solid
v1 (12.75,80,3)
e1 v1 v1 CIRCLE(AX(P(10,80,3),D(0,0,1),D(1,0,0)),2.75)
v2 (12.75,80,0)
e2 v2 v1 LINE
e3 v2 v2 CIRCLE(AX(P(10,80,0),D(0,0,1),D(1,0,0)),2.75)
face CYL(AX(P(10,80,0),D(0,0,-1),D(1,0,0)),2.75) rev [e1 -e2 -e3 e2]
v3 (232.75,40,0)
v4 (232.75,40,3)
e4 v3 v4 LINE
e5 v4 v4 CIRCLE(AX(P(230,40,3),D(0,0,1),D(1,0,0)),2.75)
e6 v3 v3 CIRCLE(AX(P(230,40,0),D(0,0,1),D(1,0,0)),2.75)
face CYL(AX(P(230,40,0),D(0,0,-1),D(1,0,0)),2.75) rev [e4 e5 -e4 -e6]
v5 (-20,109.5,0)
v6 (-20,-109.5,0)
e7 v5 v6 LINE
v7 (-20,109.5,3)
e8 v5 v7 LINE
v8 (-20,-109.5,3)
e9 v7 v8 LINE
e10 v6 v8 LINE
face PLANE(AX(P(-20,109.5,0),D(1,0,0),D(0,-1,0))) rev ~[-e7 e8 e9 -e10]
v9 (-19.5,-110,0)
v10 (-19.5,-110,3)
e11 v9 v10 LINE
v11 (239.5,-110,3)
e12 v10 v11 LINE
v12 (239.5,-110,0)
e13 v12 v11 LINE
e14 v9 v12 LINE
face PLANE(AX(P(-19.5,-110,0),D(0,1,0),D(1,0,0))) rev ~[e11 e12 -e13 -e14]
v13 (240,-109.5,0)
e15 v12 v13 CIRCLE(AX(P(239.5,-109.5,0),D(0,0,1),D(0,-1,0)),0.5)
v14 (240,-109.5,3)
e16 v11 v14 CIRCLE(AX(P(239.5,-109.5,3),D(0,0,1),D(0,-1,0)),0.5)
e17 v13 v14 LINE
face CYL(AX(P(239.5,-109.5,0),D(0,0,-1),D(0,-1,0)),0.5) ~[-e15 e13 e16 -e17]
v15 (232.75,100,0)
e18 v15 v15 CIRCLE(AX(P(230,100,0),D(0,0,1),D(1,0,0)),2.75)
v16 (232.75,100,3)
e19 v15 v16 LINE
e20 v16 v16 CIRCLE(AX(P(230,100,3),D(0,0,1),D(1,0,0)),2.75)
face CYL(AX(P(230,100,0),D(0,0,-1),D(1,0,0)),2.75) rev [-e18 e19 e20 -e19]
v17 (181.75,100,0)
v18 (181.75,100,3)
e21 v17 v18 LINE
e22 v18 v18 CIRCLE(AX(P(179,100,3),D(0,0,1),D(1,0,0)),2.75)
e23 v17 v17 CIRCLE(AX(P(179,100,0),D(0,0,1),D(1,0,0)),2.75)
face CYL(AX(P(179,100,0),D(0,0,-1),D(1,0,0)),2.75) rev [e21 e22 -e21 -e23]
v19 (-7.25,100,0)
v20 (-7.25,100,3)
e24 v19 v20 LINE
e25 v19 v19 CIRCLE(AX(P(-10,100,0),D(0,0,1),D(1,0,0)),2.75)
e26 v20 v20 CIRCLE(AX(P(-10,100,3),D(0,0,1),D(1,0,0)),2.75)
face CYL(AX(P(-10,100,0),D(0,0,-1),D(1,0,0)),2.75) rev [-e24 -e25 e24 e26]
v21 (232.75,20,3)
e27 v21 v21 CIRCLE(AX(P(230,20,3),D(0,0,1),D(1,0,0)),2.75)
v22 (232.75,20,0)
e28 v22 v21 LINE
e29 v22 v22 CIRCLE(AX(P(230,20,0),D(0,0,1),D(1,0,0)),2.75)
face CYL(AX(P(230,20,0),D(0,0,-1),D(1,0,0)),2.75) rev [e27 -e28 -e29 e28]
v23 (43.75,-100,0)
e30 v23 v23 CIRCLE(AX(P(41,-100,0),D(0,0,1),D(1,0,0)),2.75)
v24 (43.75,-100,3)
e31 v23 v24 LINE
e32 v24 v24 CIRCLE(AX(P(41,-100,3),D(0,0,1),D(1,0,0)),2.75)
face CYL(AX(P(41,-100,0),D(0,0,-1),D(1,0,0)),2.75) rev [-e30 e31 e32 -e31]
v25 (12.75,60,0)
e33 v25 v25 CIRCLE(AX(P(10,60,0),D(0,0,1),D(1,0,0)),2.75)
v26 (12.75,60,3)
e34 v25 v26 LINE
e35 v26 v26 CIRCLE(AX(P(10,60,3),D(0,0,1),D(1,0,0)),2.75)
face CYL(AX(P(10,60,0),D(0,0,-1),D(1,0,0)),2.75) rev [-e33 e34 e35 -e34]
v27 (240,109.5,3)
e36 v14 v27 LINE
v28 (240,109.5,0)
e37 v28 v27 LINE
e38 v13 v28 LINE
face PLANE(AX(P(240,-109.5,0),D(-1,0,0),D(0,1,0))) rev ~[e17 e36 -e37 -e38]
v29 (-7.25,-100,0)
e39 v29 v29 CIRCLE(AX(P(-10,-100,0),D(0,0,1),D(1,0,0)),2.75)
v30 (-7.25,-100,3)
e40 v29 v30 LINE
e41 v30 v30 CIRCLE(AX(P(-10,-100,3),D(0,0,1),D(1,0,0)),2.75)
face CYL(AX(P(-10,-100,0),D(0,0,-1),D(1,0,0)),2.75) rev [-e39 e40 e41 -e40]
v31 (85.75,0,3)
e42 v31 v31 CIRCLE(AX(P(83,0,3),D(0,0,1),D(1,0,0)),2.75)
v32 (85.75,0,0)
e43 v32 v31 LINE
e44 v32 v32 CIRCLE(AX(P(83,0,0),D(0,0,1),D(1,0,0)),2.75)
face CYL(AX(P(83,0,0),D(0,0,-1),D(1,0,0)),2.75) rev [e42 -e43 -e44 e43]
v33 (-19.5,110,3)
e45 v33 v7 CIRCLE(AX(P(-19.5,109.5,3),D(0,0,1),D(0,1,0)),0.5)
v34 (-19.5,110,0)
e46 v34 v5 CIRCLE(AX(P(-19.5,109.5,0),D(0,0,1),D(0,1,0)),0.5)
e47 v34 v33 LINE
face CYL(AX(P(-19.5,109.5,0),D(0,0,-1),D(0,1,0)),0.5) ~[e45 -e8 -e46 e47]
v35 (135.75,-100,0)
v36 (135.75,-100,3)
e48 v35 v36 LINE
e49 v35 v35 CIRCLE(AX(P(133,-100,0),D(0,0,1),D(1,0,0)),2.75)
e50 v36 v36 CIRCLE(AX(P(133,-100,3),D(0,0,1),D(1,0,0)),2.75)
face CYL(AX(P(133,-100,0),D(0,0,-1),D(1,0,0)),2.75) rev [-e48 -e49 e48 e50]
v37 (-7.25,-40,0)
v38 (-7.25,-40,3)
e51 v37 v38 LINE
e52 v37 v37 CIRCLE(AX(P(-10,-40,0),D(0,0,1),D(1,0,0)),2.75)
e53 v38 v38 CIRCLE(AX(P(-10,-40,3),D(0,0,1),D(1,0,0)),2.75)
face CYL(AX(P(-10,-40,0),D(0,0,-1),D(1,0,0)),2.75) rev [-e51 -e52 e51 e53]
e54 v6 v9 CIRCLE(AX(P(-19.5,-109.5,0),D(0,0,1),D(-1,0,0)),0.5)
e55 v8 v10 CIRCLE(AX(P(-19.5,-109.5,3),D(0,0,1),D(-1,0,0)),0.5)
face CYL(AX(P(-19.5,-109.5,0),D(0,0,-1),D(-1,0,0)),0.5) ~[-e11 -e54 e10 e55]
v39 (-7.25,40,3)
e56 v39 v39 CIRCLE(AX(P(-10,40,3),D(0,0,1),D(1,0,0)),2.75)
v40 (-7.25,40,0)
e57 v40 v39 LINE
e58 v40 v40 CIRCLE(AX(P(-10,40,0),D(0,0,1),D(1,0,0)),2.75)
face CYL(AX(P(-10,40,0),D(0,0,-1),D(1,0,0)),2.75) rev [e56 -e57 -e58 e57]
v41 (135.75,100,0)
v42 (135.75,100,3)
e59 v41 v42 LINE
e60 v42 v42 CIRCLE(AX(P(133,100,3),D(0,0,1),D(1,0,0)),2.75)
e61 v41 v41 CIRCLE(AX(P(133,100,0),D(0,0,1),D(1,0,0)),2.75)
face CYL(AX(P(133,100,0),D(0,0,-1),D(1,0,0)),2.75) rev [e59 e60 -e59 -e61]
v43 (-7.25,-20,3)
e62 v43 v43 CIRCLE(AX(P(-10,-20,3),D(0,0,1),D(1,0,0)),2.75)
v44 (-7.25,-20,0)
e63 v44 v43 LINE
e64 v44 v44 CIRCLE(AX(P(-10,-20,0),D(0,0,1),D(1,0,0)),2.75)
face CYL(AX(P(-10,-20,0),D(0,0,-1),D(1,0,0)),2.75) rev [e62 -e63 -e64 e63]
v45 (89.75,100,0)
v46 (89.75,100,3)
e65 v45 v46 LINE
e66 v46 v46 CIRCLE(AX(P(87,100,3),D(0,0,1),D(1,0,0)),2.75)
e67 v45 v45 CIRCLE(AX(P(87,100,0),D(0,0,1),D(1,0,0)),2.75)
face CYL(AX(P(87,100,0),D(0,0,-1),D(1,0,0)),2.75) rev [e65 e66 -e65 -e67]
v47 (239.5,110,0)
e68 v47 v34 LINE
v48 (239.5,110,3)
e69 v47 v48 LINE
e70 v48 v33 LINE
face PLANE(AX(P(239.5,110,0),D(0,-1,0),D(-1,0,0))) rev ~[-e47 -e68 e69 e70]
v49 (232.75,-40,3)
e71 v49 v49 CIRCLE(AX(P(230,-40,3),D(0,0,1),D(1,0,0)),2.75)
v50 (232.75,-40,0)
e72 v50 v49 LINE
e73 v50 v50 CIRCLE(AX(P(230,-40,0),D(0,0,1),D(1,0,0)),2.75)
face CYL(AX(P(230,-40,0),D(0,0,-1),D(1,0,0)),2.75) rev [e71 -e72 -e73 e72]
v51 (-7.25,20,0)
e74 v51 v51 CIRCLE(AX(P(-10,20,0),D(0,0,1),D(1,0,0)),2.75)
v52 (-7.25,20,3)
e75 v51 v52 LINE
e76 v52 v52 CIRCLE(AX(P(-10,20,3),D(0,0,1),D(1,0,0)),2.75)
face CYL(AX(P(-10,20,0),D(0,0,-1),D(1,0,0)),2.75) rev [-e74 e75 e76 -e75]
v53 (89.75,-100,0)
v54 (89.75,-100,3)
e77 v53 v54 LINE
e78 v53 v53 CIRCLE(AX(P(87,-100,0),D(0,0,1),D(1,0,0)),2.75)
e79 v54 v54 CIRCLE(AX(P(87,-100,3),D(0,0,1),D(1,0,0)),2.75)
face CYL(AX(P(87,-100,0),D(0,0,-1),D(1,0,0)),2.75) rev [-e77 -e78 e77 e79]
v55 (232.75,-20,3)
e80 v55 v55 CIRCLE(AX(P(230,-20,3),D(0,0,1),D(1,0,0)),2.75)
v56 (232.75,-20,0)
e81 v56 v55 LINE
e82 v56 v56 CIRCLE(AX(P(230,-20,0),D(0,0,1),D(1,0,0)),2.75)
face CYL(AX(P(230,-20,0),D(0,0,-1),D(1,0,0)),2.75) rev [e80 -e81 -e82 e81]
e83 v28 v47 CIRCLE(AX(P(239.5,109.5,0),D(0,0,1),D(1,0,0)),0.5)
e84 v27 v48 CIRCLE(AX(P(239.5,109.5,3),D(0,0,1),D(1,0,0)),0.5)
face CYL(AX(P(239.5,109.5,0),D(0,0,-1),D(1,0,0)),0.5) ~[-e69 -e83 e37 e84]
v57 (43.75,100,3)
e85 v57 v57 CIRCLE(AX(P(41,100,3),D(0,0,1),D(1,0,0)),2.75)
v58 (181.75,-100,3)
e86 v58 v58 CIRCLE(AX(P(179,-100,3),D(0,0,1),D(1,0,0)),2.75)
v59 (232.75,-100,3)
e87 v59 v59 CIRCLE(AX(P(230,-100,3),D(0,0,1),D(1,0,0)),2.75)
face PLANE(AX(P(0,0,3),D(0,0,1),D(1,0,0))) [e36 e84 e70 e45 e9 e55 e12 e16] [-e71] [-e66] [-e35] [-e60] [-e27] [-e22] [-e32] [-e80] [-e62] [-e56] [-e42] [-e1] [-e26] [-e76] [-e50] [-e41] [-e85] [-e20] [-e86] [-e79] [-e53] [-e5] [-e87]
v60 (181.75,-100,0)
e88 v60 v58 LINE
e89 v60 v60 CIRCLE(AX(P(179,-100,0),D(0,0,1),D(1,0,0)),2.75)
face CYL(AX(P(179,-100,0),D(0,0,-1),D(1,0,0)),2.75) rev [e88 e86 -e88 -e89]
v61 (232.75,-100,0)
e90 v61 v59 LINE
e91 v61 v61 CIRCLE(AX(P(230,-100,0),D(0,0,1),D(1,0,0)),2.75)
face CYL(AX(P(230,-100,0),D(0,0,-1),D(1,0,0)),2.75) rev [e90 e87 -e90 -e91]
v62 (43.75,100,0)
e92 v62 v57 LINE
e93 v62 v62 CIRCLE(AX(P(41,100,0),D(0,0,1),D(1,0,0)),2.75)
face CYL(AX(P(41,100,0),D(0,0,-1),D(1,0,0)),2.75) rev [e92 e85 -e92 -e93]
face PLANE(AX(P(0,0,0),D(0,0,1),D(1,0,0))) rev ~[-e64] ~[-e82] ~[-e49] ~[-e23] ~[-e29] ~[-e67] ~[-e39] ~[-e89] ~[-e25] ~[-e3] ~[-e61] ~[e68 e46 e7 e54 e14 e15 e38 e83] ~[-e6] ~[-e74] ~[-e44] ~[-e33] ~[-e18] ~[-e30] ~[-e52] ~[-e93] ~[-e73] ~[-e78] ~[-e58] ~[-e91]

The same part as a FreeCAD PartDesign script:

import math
import FreeCAD as App
import Part
import Sketcher
from FreeCAD import Vector
Q = App.Units.Quantity

doc = App.newDocument("Part")
params = doc.addObject("Spreadsheet::Sheet", "Params")
for row, (alias, value) in enumerate([
    ("sketch1_diameter", "5.5 mm"),
    ("sketch1_radius", "0.5 mm"),
    ("sketch1_width", "259 mm"),
    ("sketch1_height", "219 mm"),
    ("pad1_length", "3 mm"),
], start=1):
    params.set(f"A{row}", alias)
    params.set(f"B{row}", "=" + value)
    params.setAlias(f"B{row}", alias)

body = doc.addObject("PartDesign::Body", "Body")

# Sketch on XY plane
sketch1 = body.newObject("Sketcher::SketchObject", "Sketch")
sketch1.AttachmentSupport = (doc.getObject("XY_Plane"), [""])
sketch1.MapMode = "FlatFace"
sketch1.addGeometry([
    Part.ArcOfCircle(Part.Circle(Vector(239.5, 109.5, 0), Vector(0, 0, 1), 0.5), math.radians(0), math.radians(90)),  # 0
    Part.LineSegment(Vector(239.5, 110, 0), Vector(-19.5, 110, 0)),  # 1
    Part.ArcOfCircle(Part.Circle(Vector(-19.5, 109.5, 0), Vector(0, 0, 1), 0.5), math.radians(90), math.radians(180)),  # 2
    Part.LineSegment(Vector(-20, 109.5, 0), Vector(-20, -109.5, 0)),  # 3
    Part.ArcOfCircle(Part.Circle(Vector(-19.5, -109.5, 0), Vector(0, 0, 1), 0.5), math.radians(180), math.radians(270)),  # 4
    Part.LineSegment(Vector(-19.5, -110, 0), Vector(239.5, -110, 0)),  # 5
    Part.ArcOfCircle(Part.Circle(Vector(239.5, -109.5, 0), Vector(0, 0, 1), 0.5), math.radians(-90), math.radians(0)),  # 6
    Part.LineSegment(Vector(240, -109.5, 0), Vector(240, 109.5, 0)),  # 7
    Part.Circle(Vector(-10, -100, 0), Vector(0, 0, 1), 2.8),  # 8
    Part.Circle(Vector(41, -100, 0), Vector(0, 0, 1), 2.8),  # 9
    Part.Circle(Vector(87, -100, 0), Vector(0, 0, 1), 2.8),  # 10
    Part.Circle(Vector(-10, -40, 0), Vector(0, 0, 1), 2.8),  # 11
    Part.Circle(Vector(-10, -20, 0), Vector(0, 0, 1), 2.8),  # 12
    Part.Circle(Vector(133, -100, 0), Vector(0, 0, 1), 2.8),  # 13
    Part.Circle(Vector(179, -100, 0), Vector(0, 0, 1), 2.8),  # 14
    Part.Circle(Vector(230, -100, 0), Vector(0, 0, 1), 2.8),  # 15
    Part.Circle(Vector(230, -40, 0), Vector(0, 0, 1), 2.8),  # 16
    Part.Circle(Vector(230, -20, 0), Vector(0, 0, 1), 2.8),  # 17
    Part.Circle(Vector(-10, 20, 0), Vector(0, 0, 1), 2.8),  # 18
    Part.Circle(Vector(-10, 40, 0), Vector(0, 0, 1), 2.8),  # 19
    Part.Circle(Vector(83, 0, 0), Vector(0, 0, 1), 2.8),  # 20
    Part.Circle(Vector(10, 60, 0), Vector(0, 0, 1), 2.8),  # 21
    Part.Circle(Vector(10, 80, 0), Vector(0, 0, 1), 2.8),  # 22
    Part.Circle(Vector(-10, 100, 0), Vector(0, 0, 1), 2.8),  # 23
    Part.Circle(Vector(41, 100, 0), Vector(0, 0, 1), 2.8),  # 24
    Part.Circle(Vector(87, 100, 0), Vector(0, 0, 1), 2.8),  # 25
    Part.Circle(Vector(230, 20, 0), Vector(0, 0, 1), 2.8),  # 26
    Part.Circle(Vector(230, 40, 0), Vector(0, 0, 1), 2.8),  # 27
    Part.Circle(Vector(133, 100, 0), Vector(0, 0, 1), 2.8),  # 28
    Part.Circle(Vector(179, 100, 0), Vector(0, 0, 1), 2.8),  # 29
    Part.Circle(Vector(230, 100, 0), Vector(0, 0, 1), 2.8),  # 30
], False)
sketch1.addConstraint([
    Sketcher.Constraint("Tangent", 0, 2, 1, 1),
    Sketcher.Constraint("Tangent", 1, 2, 2, 1),
    Sketcher.Constraint("Tangent", 2, 2, 3, 1),
    Sketcher.Constraint("Tangent", 3, 2, 4, 1),
    Sketcher.Constraint("Tangent", 4, 2, 5, 1),
    Sketcher.Constraint("Tangent", 5, 2, 6, 1),
    Sketcher.Constraint("Tangent", 6, 2, 7, 1),
    Sketcher.Constraint("Tangent", 7, 2, 0, 1),
    Sketcher.Constraint("Horizontal", 1),
    Sketcher.Constraint("Vertical", 3),
    Sketcher.Constraint("Horizontal", 5),
    Sketcher.Constraint("Vertical", 7),
    Sketcher.Constraint("Equal", 0, 2),
    Sketcher.Constraint("Equal", 2, 4),
    Sketcher.Constraint("Equal", 4, 6),
    Sketcher.Constraint("Equal", 8, 9),
    Sketcher.Constraint("Equal", 9, 10),
    Sketcher.Constraint("Equal", 10, 11),
    Sketcher.Constraint("Equal", 11, 12),
    Sketcher.Constraint("Equal", 12, 13),
    Sketcher.Constraint("Equal", 13, 14),
    Sketcher.Constraint("Equal", 14, 15),
    Sketcher.Constraint("Equal", 15, 16),
    Sketcher.Constraint("Equal", 16, 17),
    Sketcher.Constraint("Equal", 17, 18),
    Sketcher.Constraint("Equal", 18, 19),
    Sketcher.Constraint("Equal", 19, 20),
    Sketcher.Constraint("Equal", 20, 21),
    Sketcher.Constraint("Equal", 21, 22),
    Sketcher.Constraint("Equal", 22, 23),
    Sketcher.Constraint("Equal", 23, 24),
    Sketcher.Constraint("Equal", 24, 25),
    Sketcher.Constraint("Equal", 25, 26),
    Sketcher.Constraint("Equal", 26, 27),
    Sketcher.Constraint("Equal", 27, 28),
    Sketcher.Constraint("Equal", 28, 29),
    Sketcher.Constraint("Equal", 29, 30),
    Sketcher.Constraint("Symmetric", 12, 3, 18, 3, -1),
    Sketcher.Constraint("Symmetric", 11, 3, 19, 3, -1),
    Sketcher.Constraint("Symmetric", 8, 3, 23, 3, -1),
    Sketcher.Constraint("Symmetric", 9, 3, 24, 3, -1),
    Sketcher.Constraint("Symmetric", 10, 3, 25, 3, -1),
    Sketcher.Constraint("Symmetric", 17, 3, 26, 3, -1),
    Sketcher.Constraint("Symmetric", 16, 3, 27, 3, -1),
    Sketcher.Constraint("Symmetric", 13, 3, 28, 3, -1),
    Sketcher.Constraint("Symmetric", 14, 3, 29, 3, -1),
    Sketcher.Constraint("Symmetric", 15, 3, 30, 3, -1),
    Sketcher.Constraint("PointOnObject", 20, 3, -1),
    Sketcher.Constraint("Horizontal", 8, 3, 9, 3),
    Sketcher.Constraint("Horizontal", 9, 3, 10, 3),
    Sketcher.Constraint("Horizontal", 10, 3, 13, 3),
    Sketcher.Constraint("Horizontal", 13, 3, 14, 3),
    Sketcher.Constraint("Horizontal", 14, 3, 15, 3),
    Sketcher.Constraint("Horizontal", 11, 3, 16, 3),
    Sketcher.Constraint("Horizontal", 12, 3, 17, 3),
    Sketcher.Constraint("Vertical", 8, 3, 11, 3),
    Sketcher.Constraint("Vertical", 11, 3, 12, 3),
    Sketcher.Constraint("Vertical", 15, 3, 16, 3),
    Sketcher.Constraint("Vertical", 16, 3, 17, 3),
    Sketcher.Constraint("Vertical", 21, 3, 22, 3),
    Sketcher.Constraint("Diameter", 8, Q("5.5 mm")),
    Sketcher.Constraint("Radius", 0, Q("0.5 mm")),
    Sketcher.Constraint("DistanceX", 1, 2, 1, 1, Q("259 mm")),
    Sketcher.Constraint("DistanceY", 3, 2, 3, 1, Q("219 mm")),
    Sketcher.Constraint("DistanceX", 8, 3, -1, 1, Q("10 mm")),
    Sketcher.Constraint("DistanceY", 8, 3, -1, 1, Q("100 mm")),
    Sketcher.Constraint("DistanceX", -1, 1, 9, 3, Q("41 mm")),
    Sketcher.Constraint("DistanceX", -1, 1, 10, 3, Q("87 mm")),
    Sketcher.Constraint("DistanceY", 11, 3, -1, 1, Q("40 mm")),
    Sketcher.Constraint("DistanceY", 12, 3, -1, 1, Q("20 mm")),
    Sketcher.Constraint("DistanceX", -1, 1, 13, 3, Q("133 mm")),
    Sketcher.Constraint("DistanceX", -1, 1, 14, 3, Q("179 mm")),
    Sketcher.Constraint("DistanceX", -1, 1, 15, 3, Q("230 mm")),
    Sketcher.Constraint("DistanceX", -1, 1, 20, 3, Q("83 mm")),
    Sketcher.Constraint("DistanceX", -1, 1, 21, 3, Q("10 mm")),
    Sketcher.Constraint("DistanceY", -1, 1, 21, 3, Q("60 mm")),
    Sketcher.Constraint("DistanceY", -1, 1, 22, 3, Q("80 mm")),
    Sketcher.Constraint("DistanceY", -1, 1, 0, 2, Q("110 mm")),
    Sketcher.Constraint("DistanceX", 2, 2, -1, 1, Q("20 mm")),
])
sketch1.setExpression("Constraints[60]", "Params.sketch1_diameter")
sketch1.setExpression("Constraints[61]", "Params.sketch1_radius")
sketch1.setExpression("Constraints[62]", "Params.sketch1_width")
sketch1.setExpression("Constraints[63]", "Params.sketch1_height")
pad1 = body.newObject("PartDesign::Pad", "Pad")
pad1.Profile = sketch1
pad1.setExpression("Length", "Params.pad1_length")

doc.recompute()
